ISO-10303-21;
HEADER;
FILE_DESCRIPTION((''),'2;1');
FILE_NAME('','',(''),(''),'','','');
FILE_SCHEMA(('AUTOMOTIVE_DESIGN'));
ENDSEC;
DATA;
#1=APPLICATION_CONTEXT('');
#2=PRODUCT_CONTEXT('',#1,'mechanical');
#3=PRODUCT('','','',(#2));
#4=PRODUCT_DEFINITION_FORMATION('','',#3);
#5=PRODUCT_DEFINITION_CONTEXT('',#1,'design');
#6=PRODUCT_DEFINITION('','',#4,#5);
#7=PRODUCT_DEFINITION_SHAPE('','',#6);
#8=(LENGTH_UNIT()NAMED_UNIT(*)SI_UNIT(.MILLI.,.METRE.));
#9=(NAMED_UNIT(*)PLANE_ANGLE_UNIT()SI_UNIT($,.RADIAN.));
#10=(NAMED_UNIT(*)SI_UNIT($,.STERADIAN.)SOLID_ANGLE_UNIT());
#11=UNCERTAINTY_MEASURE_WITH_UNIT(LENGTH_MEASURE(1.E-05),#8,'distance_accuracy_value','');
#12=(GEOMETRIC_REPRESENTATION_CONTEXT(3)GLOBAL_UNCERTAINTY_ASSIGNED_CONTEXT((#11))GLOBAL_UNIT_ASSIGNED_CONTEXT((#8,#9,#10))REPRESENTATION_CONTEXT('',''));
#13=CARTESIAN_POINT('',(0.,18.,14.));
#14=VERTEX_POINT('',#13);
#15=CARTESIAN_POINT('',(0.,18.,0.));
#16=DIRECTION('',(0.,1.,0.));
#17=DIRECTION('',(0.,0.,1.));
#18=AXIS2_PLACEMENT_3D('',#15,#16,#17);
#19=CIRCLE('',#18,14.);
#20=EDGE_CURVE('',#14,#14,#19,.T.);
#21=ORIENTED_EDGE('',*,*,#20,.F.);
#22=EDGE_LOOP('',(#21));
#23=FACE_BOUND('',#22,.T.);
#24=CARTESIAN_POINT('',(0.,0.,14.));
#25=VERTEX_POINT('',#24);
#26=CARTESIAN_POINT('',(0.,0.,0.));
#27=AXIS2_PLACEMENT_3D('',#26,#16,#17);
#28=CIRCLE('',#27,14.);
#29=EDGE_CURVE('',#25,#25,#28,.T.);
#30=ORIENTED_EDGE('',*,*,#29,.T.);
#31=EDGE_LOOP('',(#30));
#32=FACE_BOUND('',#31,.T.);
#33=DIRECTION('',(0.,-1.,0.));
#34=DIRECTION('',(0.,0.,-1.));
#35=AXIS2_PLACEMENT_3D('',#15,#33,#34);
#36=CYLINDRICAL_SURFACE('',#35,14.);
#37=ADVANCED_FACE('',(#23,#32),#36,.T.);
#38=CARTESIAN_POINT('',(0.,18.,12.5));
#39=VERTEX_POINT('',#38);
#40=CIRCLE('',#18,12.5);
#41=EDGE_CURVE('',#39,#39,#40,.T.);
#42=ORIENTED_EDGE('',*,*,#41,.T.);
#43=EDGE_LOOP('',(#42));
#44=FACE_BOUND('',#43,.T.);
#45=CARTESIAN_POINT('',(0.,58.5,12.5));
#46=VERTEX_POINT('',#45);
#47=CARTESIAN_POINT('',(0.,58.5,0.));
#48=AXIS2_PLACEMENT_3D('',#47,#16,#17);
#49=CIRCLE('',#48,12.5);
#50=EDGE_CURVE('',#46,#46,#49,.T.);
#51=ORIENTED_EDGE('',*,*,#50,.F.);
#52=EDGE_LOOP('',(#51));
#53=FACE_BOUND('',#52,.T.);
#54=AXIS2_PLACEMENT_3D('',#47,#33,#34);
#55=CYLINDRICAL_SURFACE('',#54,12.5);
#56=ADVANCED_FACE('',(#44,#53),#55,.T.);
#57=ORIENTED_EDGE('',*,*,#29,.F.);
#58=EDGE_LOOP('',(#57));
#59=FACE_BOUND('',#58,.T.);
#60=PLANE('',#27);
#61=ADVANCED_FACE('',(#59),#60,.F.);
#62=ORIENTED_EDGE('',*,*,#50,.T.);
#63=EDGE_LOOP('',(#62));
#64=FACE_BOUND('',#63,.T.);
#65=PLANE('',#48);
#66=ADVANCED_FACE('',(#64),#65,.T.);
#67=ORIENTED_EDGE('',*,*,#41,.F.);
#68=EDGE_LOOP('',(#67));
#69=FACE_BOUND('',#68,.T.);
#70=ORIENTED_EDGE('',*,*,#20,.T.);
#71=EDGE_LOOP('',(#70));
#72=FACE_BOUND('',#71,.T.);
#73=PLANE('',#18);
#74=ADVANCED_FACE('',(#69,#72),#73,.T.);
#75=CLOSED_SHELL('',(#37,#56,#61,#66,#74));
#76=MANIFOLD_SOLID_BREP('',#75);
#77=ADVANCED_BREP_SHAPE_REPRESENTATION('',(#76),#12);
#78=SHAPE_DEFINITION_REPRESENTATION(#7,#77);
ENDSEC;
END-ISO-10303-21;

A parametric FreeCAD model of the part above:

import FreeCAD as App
import Part
import Sketcher

V = App.Vector

doc = App.newDocument("Part")
body = doc.addObject("PartDesign::Body", "Body")

sketch1 = doc.addObject("Sketcher::SketchObject", "Sketch")
body.addObject(sketch1)
sketch1.AttachmentSupport = (doc.XZ_Plane, [""])
sketch1.MapMode = "FlatFace"
sketch1.addGeometry(Part.Circle(V(0, 0, 0), V(0, 0, 1), 14), False)
sketch1.addConstraint([
    Sketcher.Constraint("Coincident", 0, 3, -1, 1),
    Sketcher.Constraint("Diameter", 0, 28.0),
])
pad1 = doc.addObject("PartDesign::Pad", "Pad")
body.addObject(pad1)
pad1.Profile = sketch1
pad1.Length = 18
pad1.Reversed = True

sketch2 = doc.addObject("Sketcher::SketchObject", "Sketch001")
body.addObject(sketch2)
sketch2.AttachmentSupport = (doc.XZ_Plane, [""])
sketch2.MapMode = "FlatFace"
sketch2.AttachmentOffset = App.Placement(V(0, 0, -18), App.Rotation())
sketch2.addGeometry(Part.Circle(V(0, 0, 0), V(0, 0, 1), 12), False)
sketch2.addConstraint([
    Sketcher.Constraint("Coincident", 0, 3, -1, 1),
    Sketcher.Constraint("Diameter", 0, 25.0),
])
pad2 = doc.addObject("PartDesign::Pad", "Pad001")
body.addObject(pad2)
pad2.Profile = sketch2
pad2.Length = 40.5
pad2.Reversed = True

doc.recompute()
